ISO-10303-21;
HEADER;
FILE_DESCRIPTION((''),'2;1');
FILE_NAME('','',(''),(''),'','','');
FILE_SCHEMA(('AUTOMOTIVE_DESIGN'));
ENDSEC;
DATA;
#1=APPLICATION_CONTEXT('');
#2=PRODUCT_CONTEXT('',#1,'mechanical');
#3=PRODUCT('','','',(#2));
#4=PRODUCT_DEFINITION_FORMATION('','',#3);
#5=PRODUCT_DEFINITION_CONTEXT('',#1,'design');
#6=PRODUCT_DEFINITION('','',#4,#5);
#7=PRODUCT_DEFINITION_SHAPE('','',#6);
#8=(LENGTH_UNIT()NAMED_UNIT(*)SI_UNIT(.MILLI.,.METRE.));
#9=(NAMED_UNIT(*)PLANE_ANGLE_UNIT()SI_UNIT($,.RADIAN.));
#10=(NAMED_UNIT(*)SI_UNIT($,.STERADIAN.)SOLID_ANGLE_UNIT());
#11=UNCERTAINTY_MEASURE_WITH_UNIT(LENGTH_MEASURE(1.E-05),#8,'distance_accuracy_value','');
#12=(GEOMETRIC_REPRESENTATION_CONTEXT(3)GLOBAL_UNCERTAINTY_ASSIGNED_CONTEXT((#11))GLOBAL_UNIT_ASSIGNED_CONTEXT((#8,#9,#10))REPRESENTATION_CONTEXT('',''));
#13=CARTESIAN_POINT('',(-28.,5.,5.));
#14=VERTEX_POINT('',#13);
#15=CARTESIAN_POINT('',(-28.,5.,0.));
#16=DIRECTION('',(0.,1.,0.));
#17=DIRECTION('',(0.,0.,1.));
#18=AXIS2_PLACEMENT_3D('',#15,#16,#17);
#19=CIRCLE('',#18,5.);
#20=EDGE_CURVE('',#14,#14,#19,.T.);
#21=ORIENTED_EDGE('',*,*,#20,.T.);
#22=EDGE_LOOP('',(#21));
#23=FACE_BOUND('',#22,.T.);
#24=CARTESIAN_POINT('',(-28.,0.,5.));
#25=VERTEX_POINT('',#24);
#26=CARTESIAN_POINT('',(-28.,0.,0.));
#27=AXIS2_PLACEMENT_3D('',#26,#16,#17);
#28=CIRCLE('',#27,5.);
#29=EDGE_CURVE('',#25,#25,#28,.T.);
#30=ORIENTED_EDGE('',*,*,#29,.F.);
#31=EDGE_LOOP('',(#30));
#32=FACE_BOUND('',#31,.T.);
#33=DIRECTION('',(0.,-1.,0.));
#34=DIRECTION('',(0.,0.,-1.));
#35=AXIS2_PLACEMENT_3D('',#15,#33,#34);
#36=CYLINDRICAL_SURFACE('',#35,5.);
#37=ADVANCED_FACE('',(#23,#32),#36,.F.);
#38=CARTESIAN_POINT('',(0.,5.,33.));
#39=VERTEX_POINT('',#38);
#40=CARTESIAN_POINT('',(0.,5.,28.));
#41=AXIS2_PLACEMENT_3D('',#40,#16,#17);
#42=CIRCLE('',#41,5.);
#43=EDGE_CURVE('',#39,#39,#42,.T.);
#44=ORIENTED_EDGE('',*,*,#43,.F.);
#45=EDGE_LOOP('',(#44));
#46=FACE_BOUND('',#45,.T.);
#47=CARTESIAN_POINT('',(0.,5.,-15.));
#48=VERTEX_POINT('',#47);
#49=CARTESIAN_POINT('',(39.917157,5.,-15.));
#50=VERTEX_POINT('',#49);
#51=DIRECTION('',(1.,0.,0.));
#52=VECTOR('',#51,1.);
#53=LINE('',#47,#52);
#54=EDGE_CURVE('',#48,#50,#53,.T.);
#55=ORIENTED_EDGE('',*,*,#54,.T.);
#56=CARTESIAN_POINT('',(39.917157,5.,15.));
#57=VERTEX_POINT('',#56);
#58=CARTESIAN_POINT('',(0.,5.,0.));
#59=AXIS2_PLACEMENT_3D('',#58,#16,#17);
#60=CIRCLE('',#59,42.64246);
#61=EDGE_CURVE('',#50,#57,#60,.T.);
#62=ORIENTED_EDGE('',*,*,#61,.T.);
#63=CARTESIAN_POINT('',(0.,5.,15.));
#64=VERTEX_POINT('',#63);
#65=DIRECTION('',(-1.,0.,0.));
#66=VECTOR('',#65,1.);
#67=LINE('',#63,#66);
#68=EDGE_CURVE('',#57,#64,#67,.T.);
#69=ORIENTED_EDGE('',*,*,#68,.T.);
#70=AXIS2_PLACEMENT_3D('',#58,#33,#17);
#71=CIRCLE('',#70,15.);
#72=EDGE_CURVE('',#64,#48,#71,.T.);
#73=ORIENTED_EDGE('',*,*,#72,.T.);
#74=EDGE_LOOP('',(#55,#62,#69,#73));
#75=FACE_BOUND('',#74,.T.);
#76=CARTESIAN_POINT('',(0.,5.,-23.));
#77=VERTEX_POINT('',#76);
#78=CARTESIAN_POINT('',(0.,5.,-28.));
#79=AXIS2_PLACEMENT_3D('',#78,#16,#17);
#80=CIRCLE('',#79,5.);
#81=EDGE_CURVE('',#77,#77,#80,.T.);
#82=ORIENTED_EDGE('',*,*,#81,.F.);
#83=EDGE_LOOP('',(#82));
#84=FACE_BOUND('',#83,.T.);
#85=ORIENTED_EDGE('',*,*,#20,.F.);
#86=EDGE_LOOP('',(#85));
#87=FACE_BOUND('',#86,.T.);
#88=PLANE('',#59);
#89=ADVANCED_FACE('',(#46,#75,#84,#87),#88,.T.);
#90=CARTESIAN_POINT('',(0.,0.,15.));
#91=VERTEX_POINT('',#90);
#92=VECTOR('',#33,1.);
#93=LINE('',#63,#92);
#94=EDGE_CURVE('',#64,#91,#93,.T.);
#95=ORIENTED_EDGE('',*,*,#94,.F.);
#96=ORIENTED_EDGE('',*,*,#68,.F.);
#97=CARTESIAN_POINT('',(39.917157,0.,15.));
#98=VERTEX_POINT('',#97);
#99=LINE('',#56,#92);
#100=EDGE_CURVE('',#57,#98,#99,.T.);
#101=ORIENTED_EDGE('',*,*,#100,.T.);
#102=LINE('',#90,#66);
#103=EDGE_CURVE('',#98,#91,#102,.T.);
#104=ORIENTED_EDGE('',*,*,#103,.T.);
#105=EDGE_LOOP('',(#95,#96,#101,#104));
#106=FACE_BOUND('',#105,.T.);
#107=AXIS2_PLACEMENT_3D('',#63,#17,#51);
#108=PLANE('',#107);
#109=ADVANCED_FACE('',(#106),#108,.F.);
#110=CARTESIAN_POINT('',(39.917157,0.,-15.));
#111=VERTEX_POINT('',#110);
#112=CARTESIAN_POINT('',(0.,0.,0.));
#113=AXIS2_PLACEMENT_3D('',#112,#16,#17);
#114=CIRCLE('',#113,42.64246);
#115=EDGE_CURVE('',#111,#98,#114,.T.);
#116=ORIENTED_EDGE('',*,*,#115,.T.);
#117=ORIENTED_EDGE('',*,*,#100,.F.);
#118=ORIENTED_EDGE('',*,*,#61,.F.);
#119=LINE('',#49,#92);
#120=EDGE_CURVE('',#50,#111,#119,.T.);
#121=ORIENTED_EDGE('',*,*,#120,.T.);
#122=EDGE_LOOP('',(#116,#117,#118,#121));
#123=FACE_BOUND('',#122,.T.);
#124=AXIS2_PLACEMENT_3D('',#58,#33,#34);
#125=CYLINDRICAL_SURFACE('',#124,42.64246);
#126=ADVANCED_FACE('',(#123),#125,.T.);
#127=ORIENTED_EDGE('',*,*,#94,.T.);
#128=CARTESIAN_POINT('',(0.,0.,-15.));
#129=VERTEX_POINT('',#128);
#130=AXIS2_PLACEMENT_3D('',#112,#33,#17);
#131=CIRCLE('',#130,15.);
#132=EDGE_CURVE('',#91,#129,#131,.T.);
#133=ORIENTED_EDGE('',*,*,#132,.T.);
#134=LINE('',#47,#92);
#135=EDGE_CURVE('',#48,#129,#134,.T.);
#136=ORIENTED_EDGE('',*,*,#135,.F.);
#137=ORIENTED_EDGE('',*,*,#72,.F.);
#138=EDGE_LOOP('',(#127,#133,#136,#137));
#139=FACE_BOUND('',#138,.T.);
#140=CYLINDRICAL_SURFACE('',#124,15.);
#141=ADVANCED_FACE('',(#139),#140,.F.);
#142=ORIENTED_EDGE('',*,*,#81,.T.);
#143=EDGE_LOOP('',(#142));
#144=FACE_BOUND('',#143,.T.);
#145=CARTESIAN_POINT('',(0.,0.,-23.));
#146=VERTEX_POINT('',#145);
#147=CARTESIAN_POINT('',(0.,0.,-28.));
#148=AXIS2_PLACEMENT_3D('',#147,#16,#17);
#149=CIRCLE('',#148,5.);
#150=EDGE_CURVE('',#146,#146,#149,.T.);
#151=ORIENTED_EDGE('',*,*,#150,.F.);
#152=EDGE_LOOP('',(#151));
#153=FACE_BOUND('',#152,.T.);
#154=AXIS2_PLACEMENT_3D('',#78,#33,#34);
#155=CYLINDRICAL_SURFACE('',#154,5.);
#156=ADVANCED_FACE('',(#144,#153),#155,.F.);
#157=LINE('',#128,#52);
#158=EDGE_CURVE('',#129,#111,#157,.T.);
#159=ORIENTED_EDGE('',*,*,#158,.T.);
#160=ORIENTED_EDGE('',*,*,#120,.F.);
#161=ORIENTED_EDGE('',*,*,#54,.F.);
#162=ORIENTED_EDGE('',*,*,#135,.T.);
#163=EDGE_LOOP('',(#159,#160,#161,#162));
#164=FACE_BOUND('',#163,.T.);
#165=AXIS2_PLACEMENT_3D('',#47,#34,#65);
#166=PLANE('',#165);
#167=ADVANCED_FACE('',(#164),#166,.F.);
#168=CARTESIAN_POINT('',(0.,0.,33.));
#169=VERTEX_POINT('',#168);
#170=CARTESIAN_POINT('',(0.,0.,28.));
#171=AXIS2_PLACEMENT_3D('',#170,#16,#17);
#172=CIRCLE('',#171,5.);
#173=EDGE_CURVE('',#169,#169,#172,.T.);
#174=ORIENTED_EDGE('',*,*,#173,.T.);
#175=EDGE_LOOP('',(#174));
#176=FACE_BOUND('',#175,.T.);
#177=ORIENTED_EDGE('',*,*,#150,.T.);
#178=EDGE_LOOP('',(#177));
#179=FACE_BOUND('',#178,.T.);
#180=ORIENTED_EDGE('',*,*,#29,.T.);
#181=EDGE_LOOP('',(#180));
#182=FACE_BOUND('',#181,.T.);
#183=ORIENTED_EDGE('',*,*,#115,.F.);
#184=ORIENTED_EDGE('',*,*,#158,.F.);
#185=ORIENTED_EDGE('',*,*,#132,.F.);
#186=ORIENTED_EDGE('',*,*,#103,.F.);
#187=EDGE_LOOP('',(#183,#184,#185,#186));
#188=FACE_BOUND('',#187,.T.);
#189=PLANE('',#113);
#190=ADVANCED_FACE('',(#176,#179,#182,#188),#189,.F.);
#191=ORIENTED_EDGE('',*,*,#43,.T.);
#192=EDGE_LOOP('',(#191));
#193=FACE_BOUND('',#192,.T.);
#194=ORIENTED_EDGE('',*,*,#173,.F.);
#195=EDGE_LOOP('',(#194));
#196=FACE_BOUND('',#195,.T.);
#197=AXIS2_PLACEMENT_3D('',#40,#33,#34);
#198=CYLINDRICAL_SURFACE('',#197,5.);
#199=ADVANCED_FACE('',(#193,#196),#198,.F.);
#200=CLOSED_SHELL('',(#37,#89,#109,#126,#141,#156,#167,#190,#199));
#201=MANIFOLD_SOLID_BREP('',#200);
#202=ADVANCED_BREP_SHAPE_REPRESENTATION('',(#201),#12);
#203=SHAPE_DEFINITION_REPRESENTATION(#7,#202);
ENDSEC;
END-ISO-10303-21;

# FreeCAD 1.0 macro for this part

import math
import FreeCAD as App
import Part
import Sketcher
from FreeCAD import Vector
Q = App.Units.Quantity

doc = App.newDocument("Part")
body = doc.addObject("PartDesign::Body", "Body")

sketch1 = body.newObject("Sketcher::SketchObject", "Sketch")
sketch1.AttachmentSupport = (doc.getObject("XZ_Plane"), [""])
sketch1.MapMode = "FlatFace"
sketch1.addGeometry([
    Part.LineSegment(Vector(0, -15, 0), Vector(40, -15, 0)),
    Part.ArcOfCircle(Part.Circle(Vector(0, 0, 0), Vector(0, 0, 1), 43), math.radians(21), math.radians(339)),
    Part.LineSegment(Vector(40, 15, 0), Vector(0, 15, 0)),
    Part.ArcOfCircle(Part.Circle(Vector(0, 0, 0), Vector(0, 0, 1), 15), math.radians(90), math.radians(270)),
    Part.Circle(Vector(0, 28, 0), Vector(0, 0, 1), 5),
    Part.Circle(Vector(-28, 0, 0), Vector(0, 0, 1), 5),
    Part.Circle(Vector(0, -28, 0), Vector(0, 0, 1), 5),
], False)
sketch1.addConstraint([
    Sketcher.Constraint("Coincident", 0, 2, 1, 2),
    Sketcher.Constraint("Coincident", 1, 1, 2, 1),
    Sketcher.Constraint("Tangent", 2, 2, 3, 1),
    Sketcher.Constraint("Tangent", 3, 2, 0, 1),
    Sketcher.Constraint("Horizontal", 0),
    Sketcher.Constraint("Horizontal", 2),
    Sketcher.Constraint("Coincident", 1, 3, -1, 1),
    Sketcher.Constraint("Coincident", 3, 3, -1, 1),
    Sketcher.Constraint("Equal", 4, 5),
    Sketcher.Constraint("Equal", 5, 6),
    Sketcher.Constraint("Symmetric", 4, 3, 6, 3, -1, 1),
    Sketcher.Constraint("PointOnObject", 4, 3, -2),
    Sketcher.Constraint("PointOnObject", 5, 3, -1),
    Sketcher.Constraint("Diameter", 4, Q("10 mm")),
    Sketcher.Constraint("Radius", 3, Q("15 mm")),
    Sketcher.Constraint("DistanceY", -1, 1, 4, 3, Q("28 mm")),
    Sketcher.Constraint("DistanceX", 5, 3, -1, 1, Q("28 mm")),
    Sketcher.Constraint("Radius", 1, Q("42.64246 mm")),
])
pad1 = body.newObject("PartDesign::Pad", "Pad")
pad1.Profile = sketch1
pad1.Length = 5
pad1.Reversed = True

doc.recompute()
